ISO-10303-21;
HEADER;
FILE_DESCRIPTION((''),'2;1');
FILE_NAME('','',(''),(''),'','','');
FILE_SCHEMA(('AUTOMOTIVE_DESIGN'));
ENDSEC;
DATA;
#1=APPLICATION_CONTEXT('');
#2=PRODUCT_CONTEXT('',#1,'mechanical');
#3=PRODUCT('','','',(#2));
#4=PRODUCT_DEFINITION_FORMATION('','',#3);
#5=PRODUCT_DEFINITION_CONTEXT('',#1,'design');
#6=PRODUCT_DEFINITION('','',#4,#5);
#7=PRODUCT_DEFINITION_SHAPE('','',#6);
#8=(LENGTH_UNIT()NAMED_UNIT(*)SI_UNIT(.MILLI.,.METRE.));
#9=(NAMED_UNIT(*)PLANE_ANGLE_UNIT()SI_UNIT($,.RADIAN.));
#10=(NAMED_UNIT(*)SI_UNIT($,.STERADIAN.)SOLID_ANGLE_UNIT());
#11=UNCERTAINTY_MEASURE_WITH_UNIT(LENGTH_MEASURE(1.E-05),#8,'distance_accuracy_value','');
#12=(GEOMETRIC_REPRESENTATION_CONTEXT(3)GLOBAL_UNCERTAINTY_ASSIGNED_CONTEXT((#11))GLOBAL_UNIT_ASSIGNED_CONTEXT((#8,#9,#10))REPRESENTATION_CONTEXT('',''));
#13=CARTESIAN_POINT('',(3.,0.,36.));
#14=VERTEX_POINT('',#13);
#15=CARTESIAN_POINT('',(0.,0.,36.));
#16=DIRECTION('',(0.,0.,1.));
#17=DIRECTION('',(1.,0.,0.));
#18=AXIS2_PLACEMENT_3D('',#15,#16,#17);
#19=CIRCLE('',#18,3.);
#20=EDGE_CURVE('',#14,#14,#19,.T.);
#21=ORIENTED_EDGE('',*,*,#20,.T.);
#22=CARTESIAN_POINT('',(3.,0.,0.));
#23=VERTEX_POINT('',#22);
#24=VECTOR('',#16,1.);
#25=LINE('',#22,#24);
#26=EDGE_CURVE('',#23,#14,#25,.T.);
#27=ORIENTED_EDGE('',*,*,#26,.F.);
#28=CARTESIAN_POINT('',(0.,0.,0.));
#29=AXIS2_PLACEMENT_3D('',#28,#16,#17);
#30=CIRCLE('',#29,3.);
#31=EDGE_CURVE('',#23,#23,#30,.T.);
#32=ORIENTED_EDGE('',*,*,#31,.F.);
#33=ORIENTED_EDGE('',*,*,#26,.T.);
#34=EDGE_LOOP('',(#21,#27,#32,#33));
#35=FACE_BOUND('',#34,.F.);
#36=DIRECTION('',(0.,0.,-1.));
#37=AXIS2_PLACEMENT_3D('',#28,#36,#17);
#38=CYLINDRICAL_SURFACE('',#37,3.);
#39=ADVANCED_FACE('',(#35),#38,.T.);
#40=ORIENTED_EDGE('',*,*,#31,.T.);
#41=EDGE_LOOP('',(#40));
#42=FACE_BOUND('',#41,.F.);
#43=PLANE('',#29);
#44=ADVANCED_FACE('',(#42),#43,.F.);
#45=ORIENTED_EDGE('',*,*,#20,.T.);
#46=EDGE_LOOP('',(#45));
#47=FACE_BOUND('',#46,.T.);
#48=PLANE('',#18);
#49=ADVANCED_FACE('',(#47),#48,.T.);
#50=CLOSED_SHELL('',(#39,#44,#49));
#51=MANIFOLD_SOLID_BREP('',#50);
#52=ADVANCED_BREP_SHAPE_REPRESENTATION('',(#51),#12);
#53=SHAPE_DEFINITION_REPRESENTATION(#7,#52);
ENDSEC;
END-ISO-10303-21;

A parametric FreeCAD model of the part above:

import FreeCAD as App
import Part
import Sketcher
from FreeCAD import Vector
Q = App.Units.Quantity

doc = App.newDocument("Part")
params = doc.addObject("Spreadsheet::Sheet", "Params")
for row, (alias, value) in enumerate([
    ("sketch1_diameter", "6 mm"),
    ("pad1_length", "36 mm"),
], start=1):
    params.set(f"A{row}", alias)
    params.set(f"B{row}", "=" + value)
    params.setAlias(f"B{row}", alias)

body = doc.addObject("PartDesign::Body", "Body")

# Sketch on XY plane
sketch1 = doc.addObject("Sketcher::SketchObject", "Sketch")
body.addObject(sketch1)
sketch1.AttachmentSupport = (doc.XY_Plane, [""])
sketch1.MapMode = "FlatFace"
sketch1.addGeometry(Part.Circle(Vector(0, 0, 0), Vector(0, 0, 1), 3), False)
sketch1.addConstraint(Sketcher.Constraint("Coincident", 0, 3, -1, 1))
sketch1.addConstraint(Sketcher.Constraint("Diameter", 0, Q("6 mm")))
sketch1.setExpression("Constraints[1]", "Params.sketch1_diameter")
pad1 = doc.addObject("PartDesign::Pad", "Pad")
body.addObject(pad1)
pad1.Profile = sketch1
pad1.setExpression("Length", "Params.pad1_length")

doc.recompute()
